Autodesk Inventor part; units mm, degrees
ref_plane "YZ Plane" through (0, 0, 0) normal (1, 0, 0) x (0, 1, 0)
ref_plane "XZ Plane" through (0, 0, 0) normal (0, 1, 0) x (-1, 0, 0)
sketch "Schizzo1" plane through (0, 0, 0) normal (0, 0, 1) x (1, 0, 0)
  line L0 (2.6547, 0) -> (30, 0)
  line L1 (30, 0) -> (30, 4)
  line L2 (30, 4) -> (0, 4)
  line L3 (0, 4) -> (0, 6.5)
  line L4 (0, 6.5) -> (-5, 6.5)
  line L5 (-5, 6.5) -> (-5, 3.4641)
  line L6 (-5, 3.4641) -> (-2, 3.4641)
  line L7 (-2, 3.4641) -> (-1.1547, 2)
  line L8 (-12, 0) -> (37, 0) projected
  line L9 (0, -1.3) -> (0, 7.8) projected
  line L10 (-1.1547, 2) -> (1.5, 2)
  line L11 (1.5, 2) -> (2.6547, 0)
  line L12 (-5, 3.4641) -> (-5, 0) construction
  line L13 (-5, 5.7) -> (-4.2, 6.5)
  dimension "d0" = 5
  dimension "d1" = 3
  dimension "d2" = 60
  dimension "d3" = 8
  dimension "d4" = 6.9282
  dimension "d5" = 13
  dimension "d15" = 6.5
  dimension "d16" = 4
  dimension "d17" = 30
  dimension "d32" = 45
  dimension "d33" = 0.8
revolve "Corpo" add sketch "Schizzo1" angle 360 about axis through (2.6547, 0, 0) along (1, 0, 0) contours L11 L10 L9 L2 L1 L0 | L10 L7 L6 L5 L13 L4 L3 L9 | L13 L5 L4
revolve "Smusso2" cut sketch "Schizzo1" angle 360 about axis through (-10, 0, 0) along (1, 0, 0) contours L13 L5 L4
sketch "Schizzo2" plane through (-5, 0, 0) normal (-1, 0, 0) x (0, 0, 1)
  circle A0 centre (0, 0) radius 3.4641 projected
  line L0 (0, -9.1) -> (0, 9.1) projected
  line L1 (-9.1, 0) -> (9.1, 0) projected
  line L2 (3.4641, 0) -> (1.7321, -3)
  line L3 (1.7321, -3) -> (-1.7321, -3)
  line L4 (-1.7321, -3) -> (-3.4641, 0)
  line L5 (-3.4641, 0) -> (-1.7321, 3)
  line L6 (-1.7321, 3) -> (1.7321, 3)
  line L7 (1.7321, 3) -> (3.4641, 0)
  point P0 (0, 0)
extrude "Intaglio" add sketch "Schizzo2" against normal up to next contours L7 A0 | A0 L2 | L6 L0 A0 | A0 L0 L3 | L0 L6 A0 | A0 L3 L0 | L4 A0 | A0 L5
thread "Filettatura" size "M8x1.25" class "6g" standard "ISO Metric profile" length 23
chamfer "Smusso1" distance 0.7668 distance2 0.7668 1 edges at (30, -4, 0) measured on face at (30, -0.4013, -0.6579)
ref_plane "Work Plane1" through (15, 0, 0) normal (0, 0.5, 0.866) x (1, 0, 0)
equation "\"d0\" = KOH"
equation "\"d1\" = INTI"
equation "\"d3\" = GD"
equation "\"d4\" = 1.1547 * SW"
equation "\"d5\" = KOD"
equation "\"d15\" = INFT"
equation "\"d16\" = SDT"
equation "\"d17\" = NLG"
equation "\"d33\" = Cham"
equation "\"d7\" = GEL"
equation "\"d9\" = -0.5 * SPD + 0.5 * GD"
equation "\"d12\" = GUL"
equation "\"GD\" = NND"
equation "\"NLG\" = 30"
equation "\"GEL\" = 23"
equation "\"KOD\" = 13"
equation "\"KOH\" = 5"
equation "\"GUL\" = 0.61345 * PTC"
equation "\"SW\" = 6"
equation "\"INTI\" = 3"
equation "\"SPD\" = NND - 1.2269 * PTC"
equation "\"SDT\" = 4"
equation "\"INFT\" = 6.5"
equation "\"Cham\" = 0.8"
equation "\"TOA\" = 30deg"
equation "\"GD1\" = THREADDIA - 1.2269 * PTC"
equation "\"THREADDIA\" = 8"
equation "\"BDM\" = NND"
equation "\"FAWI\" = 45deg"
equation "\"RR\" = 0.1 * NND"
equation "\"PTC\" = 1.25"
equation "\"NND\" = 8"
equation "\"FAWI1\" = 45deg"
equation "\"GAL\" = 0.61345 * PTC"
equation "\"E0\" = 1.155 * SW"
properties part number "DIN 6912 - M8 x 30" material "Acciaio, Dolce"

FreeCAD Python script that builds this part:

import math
import FreeCAD as App
import Part
import Sketcher

V = App.Vector
Q = App.Units.Quantity


def edges_at(feature, points):
    """Names of the edges that pass closest to the given points."""
    edges = feature.Shape.Edges
    near = lambda p: min(range(len(edges)), key=lambda i: edges[i].distToShape(Part.Vertex(*p))[0])
    return sorted({f"Edge{near(p) + 1}" for p in points})

doc = App.newDocument("Part")
body = doc.addObject("PartDesign::Body", "Body")

# Sketch on XY plane
sketch1 = body.newObject("Sketcher::SketchObject", "Sketch")
sketch1.AttachmentSupport = (doc.getObject("XY_Plane"), [""])
sketch1.MapMode = "FlatFace"
sketch1.addGeometry([
    Part.LineSegment(V(1.5, 2, 0), V(2.7, 0, 0)),  # 0
    Part.LineSegment(V(2.7, 0, 0), V(30, 0, 0)),  # 1
    Part.LineSegment(V(30, 0, 0), V(30, 4, 0)),  # 2
    Part.LineSegment(V(30, 4, 0), V(0, 4, 0)),  # 3
    Part.LineSegment(V(0, 4, 0), V(0, 6.5, 0)),  # 4
    Part.LineSegment(V(0, 6.5, 0), V(-5, 6.5, 0)),  # 5
    Part.LineSegment(V(-5, 6.5, 0), V(-5, 3.5, 0)),  # 6
    Part.LineSegment(V(-5, 3.5, 0), V(-2, 3.5, 0)),  # 7
    Part.LineSegment(V(-2, 3.5, 0), V(-1.2, 2, 0)),  # 8
    Part.LineSegment(V(-1.2, 2, 0), V(1.5, 2, 0)),  # 9
], False)
sketch1.addConstraint([
    Sketcher.Constraint("Coincident", 0, 2, 1, 1),
    Sketcher.Constraint("Coincident", 1, 2, 2, 1),
    Sketcher.Constraint("Coincident", 2, 2, 3, 1),
    Sketcher.Constraint("Coincident", 3, 2, 4, 1),
    Sketcher.Constraint("Coincident", 4, 2, 5, 1),
    Sketcher.Constraint("Coincident", 5, 2, 6, 1),
    Sketcher.Constraint("Coincident", 6, 2, 7, 1),
    Sketcher.Constraint("Coincident", 7, 2, 8, 1),
    Sketcher.Constraint("Coincident", 8, 2, 9, 1),
    Sketcher.Constraint("Coincident", 9, 2, 0, 1),
    Sketcher.Constraint("Horizontal", 1),
    Sketcher.Constraint("Vertical", 2),
    Sketcher.Constraint("Horizontal", 3),
    Sketcher.Constraint("Vertical", 4),
    Sketcher.Constraint("Horizontal", 5),
    Sketcher.Constraint("Vertical", 6),
    Sketcher.Constraint("Horizontal", 7),
    Sketcher.Constraint("Horizontal", 9),
    Sketcher.Constraint("PointOnObject", 0, 2, -1),
    Sketcher.Constraint("PointOnObject", 3, 2, -2),
    Sketcher.Constraint("Parallel", 0, 8),
    Sketcher.Constraint("DistanceX", 3, 2, 3, 1, 30.0),
    Sketcher.Constraint("DistanceX", 5, 2, 5, 1, 5.0),
    Sketcher.Constraint("DistanceX", 7, 1, 7, 2, 3.0),
    Sketcher.Constraint("DistanceY", 2, 1, 2, 2, 4.0),
    Sketcher.Constraint("Angle", 0, Q("-60 deg")),
    Sketcher.Constraint("DistanceY", -1, 1, 4, 2, 6.5),
    Sketcher.Constraint("DistanceY", -1, 1, 8, 2, 2.0),
    Sketcher.Constraint("DistanceX", -1, 1, 9, 2, 1.5),
    Sketcher.Constraint("DistanceY", 6, 2, 6, 1, 3.036),
])
revolution = body.newObject("PartDesign::Revolution", "Revolution")
revolution.Profile = sketch1
revolution.ReferenceAxis = (sketch1, ["H_Axis"])
revolution.Angle = 360

# Sketch on XY plane
sketch2 = body.newObject("Sketcher::SketchObject", "Sketch001")
sketch2.AttachmentSupport = (doc.getObject("XY_Plane"), [""])
sketch2.MapMode = "FlatFace"
sketch2.addGeometry([
    Part.LineSegment(V(-5, 5.7, 0), V(-4.2, 6.5, 0)),
    Part.LineSegment(V(-4.2, 6.5, 0), V(-5, 6.5, 0)),
    Part.LineSegment(V(-5, 6.5, 0), V(-5, 5.7, 0)),
], False)
sketch2.addConstraint([
    Sketcher.Constraint("Coincident", 0, 2, 1, 1),
    Sketcher.Constraint("Coincident", 1, 2, 2, 1),
    Sketcher.Constraint("Coincident", 2, 2, 0, 1),
    Sketcher.Constraint("Horizontal", 1),
    Sketcher.Constraint("Vertical", 2),
    Sketcher.Constraint("Equal", 1, 2),
    Sketcher.Constraint("DistanceX", 1, 2, 1, 1, 0.8),
    Sketcher.Constraint("DistanceX", 1, 2, -1, 1, 5.0),
    Sketcher.Constraint("DistanceY", -1, 1, 0, 2, 6.5),
])
groove = body.newObject("PartDesign::Groove", "Groove")
groove.Profile = sketch2
groove.ReferenceAxis = (sketch2, ["H_Axis"])
groove.Angle = 360

# Sketch on YZ plane
sketch3 = body.newObject("Sketcher::SketchObject", "Sketch002")
sketch3.AttachmentSupport = (doc.getObject("YZ_Plane"), [""])
sketch3.MapMode = "FlatFace"
sketch3.AttachmentOffset = App.Placement(V(0, 0, -5), App.Rotation())
sketch3.addGeometry([
    Part.LineSegment(V(3, 1.7, 0), V(0, 3.5, 0)),  # 0
    Part.ArcOfCircle(Part.Circle(V(0, 0, 0), V(0, 0, 1), 3.5), math.radians(30), math.radians(90)),  # 1
    Part.ArcOfCircle(Part.Circle(V(0, 0, 0), V(0, 0, 1), 3.5), math.radians(90), math.radians(150)),  # 2
    Part.LineSegment(V(0, 3.5, 0), V(-3, 1.7, 0)),  # 3
    Part.ArcOfCircle(Part.Circle(V(0, 0, 0), V(0, 0, 1), 3.5), math.radians(-30), math.radians(30)),  # 4
    Part.LineSegment(V(3, 1.7, 0), V(3, -1.7, 0)),  # 5
    Part.LineSegment(V(-3, 1.7, 0), V(-3, -1.7, 0)),  # 6
    Part.ArcOfCircle(Part.Circle(V(0, 0, 0), V(0, 0, 1), 3.5), math.radians(150), math.radians(210)),  # 7
    Part.LineSegment(V(-3, -1.7, 0), V(0, -3.5, 0)),  # 8
    Part.ArcOfCircle(Part.Circle(V(0, 0, 0), V(0, 0, 1), 3.5), math.radians(-150), math.radians(-90)),  # 9
    Part.ArcOfCircle(Part.Circle(V(0, 0, 0), V(0, 0, 1), 3.5), math.radians(-90), math.radians(-30)),  # 10
    Part.LineSegment(V(0, -3.5, 0), V(3, -1.7, 0)),  # 11
], False)
sketch3.addConstraint([
    Sketcher.Constraint("Coincident", 0, 1, 1, 1),
    Sketcher.Constraint("Coincident", 1, 2, 0, 2),
    Sketcher.Constraint("Coincident", 2, 1, 3, 1),
    Sketcher.Constraint("Coincident", 3, 2, 2, 2),
    Sketcher.Constraint("Coincident", 4, 1, 5, 2),
    Sketcher.Constraint("Coincident", 5, 1, 4, 2),
    Sketcher.Constraint("Coincident", 6, 1, 7, 1),
    Sketcher.Constraint("Coincident", 7, 2, 6, 2),
    Sketcher.Constraint("Coincident", 8, 1, 9, 1),
    Sketcher.Constraint("Coincident", 9, 2, 8, 2),
    Sketcher.Constraint("Coincident", 10, 1, 11, 1),
    Sketcher.Constraint("Coincident", 11, 2, 10, 2),
    Sketcher.Constraint("Vertical", 5),
    Sketcher.Constraint("Vertical", 6),
    Sketcher.Constraint("Coincident", 1, 3, -1, 1),
    Sketcher.Constraint("Coincident", 2, 3, -1, 1),
    Sketcher.Constraint("Coincident", 4, 3, -1, 1),
    Sketcher.Constraint("Coincident", 7, 3, -1, 1),
    Sketcher.Constraint("Coincident", 9, 3, -1, 1),
    Sketcher.Constraint("Coincident", 10, 3, -1, 1),
    Sketcher.Constraint("Coincident", 2, 1, 1, 2),
    Sketcher.Constraint("Coincident", 5, 1, 0, 1),
    Sketcher.Constraint("Coincident", 6, 1, 3, 2),
    Sketcher.Constraint("Coincident", 8, 1, 7, 2),
    Sketcher.Constraint("Coincident", 10, 1, 9, 2),
    Sketcher.Constraint("PointOnObject", 1, 2, -2),
    Sketcher.Constraint("PointOnObject", 9, 2, -2),
    Sketcher.Constraint("Parallel", 0, 8),
    Sketcher.Constraint("Parallel", 3, 11),
    Sketcher.Constraint("Angle", 0, Q("150.0007 deg")),
    Sketcher.Constraint("DistanceX", -1, 1, 0, 1, 3.0),
])
pad1 = body.newObject("PartDesign::Pad", "Pad")
pad1.Profile = sketch3
pad1.Length = 3.2679
doc.recompute()

chamfer = body.newObject("PartDesign::Chamfer", "Chamfer")
chamfer.Base = (pad1, edges_at(pad1, [(30, -4, 0)]))
chamfer.ChamferType = "Two distances"
chamfer.Size = 0.7668
chamfer.Size2 = 0.7668

doc.recompute()
